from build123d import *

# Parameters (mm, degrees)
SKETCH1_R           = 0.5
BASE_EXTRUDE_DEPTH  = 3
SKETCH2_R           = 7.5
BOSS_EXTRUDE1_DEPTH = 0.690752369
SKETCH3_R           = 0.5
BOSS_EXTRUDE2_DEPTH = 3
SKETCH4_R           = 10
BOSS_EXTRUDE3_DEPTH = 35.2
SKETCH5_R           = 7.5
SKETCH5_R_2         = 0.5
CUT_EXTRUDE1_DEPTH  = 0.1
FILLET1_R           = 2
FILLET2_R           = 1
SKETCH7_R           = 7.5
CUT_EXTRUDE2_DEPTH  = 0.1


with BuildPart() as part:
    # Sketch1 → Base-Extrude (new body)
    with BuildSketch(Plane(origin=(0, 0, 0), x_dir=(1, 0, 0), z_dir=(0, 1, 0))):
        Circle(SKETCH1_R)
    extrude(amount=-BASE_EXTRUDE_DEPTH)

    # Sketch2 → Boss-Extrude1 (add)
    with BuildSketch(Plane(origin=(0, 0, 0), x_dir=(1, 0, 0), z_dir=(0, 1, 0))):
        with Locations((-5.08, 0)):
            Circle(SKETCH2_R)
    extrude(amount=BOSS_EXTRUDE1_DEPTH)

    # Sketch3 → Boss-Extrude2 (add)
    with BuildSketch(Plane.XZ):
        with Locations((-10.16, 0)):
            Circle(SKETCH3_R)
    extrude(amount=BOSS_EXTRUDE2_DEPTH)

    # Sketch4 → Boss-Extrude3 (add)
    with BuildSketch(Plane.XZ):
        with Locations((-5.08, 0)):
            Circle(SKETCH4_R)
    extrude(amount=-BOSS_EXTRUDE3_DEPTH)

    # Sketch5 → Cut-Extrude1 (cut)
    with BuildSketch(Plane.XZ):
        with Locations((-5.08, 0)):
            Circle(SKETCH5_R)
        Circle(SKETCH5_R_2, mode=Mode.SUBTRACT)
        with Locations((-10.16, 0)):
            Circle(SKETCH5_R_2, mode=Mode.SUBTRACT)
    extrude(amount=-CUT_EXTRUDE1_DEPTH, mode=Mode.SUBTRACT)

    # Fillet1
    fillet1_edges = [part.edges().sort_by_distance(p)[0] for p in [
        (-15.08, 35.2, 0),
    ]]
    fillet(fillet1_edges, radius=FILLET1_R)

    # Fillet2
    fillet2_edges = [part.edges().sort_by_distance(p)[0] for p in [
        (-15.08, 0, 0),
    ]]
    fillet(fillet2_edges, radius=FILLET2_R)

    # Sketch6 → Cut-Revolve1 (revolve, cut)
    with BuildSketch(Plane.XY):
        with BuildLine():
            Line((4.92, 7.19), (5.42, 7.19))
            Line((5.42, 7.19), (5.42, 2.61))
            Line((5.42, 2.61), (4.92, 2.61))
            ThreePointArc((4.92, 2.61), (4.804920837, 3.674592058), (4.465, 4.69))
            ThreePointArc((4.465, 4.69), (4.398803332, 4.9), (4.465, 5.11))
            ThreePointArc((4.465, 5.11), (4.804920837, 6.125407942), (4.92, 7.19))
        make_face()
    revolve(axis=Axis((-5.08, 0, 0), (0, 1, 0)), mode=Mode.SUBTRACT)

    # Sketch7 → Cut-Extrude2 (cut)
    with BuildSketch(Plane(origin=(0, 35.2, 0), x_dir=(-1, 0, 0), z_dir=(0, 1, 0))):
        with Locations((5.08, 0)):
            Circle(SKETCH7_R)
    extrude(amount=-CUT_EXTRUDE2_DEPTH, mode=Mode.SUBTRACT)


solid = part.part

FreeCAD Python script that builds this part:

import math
import FreeCAD as App
import Part
import Sketcher


def edges_at(feature, points):
    """Names of the edges that pass closest to the given points."""
    edges = feature.Shape.Edges
    near = lambda p: min(range(len(edges)), key=lambda i: edges[i].distToShape(Part.Vertex(*p))[0])
    return sorted({f"Edge{near(p) + 1}" for p in points})

doc = App.newDocument("Part")
params = doc.addObject("Spreadsheet::Sheet", "Params")
for row, (alias, value) in enumerate([
    ("sketch1_diameter", "1 mm"),
    ("pad1_length", "3 mm"),
    ("sketch2_diameter", "15 mm"),
    ("pad2_length", "0.690752 mm"),
    ("sketch3_diameter", "1 mm"),
    ("pad3_length", "3 mm"),
    ("sketch4_diameter", "20 mm"),
    ("pad4_length", "35.2 mm"),
    ("sketch5_diameter", "15 mm"),
    ("sketch5_diameter2", "1 mm"),
    ("pocket1_length", "0.1 mm"),
    ("fillet_radius", "2 mm"),
    ("fillet2_radius", "1 mm"),
    ("sketch6_width", "0.5 mm"),
    ("sketch6_height", "4.58 mm"),
    ("groove_angle", "360 deg"),
    ("sketch7_diameter", "15 mm"),
    ("pocket2_length", "0.1 mm"),
], start=1):
    params.set(f"A{row}", alias)
    params.set(f"B{row}", "=" + value)
    params.setAlias(f"B{row}", alias)

body = doc.addObject("PartDesign::Body", "Body")

sketch1 = body.newObject("Sketcher::SketchObject", "Sketch")
sketch1.AttachmentSupport = (doc.getObject("XZ_Plane"), [""])
sketch1.MapMode = "FlatFace"
sketch1.addGeometry(Part.Circle(App.Vector(0, 0, 0), App.Vector(0, 0, 1), 0.5), False)
sketch1.addConstraint(Sketcher.Constraint("Coincident", 0, 3, -1, 1))
sketch1.addConstraint(Sketcher.Constraint("Diameter", 0, 1.0))
sketch1.setExpression("Constraints[1]", "Params.sketch1_diameter")
pad1 = body.newObject("PartDesign::Pad", "Pad")
pad1.Profile = sketch1
pad1.setExpression("Length", "Params.pad1_length")

sketch2 = body.newObject("Sketcher::SketchObject", "Sketch001")
sketch2.AttachmentSupport = (doc.getObject("XZ_Plane"), [""])
sketch2.MapMode = "FlatFace"
sketch2.addGeometry(Part.Circle(App.Vector(-5.08, 0, 0), App.Vector(0, 0, 1), 7.5), False)
sketch2.addConstraint(Sketcher.Constraint("PointOnObject", 0, 3, -1))
sketch2.addConstraint(Sketcher.Constraint("Diameter", 0, 15.0))
sketch2.addConstraint(Sketcher.Constraint("DistanceX", 0, 3, -1, 1, 5.08))
sketch2.setExpression("Constraints[1]", "Params.sketch2_diameter")
pad2 = body.newObject("PartDesign::Pad", "Pad001")
pad2.Profile = sketch2
pad2.setExpression("Length", "Params.pad2_length")
pad2.Reversed = True

sketch3 = body.newObject("Sketcher::SketchObject", "Sketch002")
sketch3.AttachmentSupport = (doc.getObject("XZ_Plane"), [""])
sketch3.MapMode = "FlatFace"
sketch3.addGeometry(Part.Circle(App.Vector(-10.16, 0, 0), App.Vector(0, 0, 1), 0.5), False)
sketch3.addConstraint(Sketcher.Constraint("PointOnObject", 0, 3, -1))
sketch3.addConstraint(Sketcher.Constraint("Diameter", 0, 1.0))
sketch3.addConstraint(Sketcher.Constraint("DistanceX", 0, 3, -1, 1, 10.16))
sketch3.setExpression("Constraints[1]", "Params.sketch3_diameter")
pad3 = body.newObject("PartDesign::Pad", "Pad002")
pad3.Profile = sketch3
pad3.setExpression("Length", "Params.pad3_length")

sketch4 = body.newObject("Sketcher::SketchObject", "Sketch003")
sketch4.AttachmentSupport = (doc.getObject("XZ_Plane"), [""])
sketch4.MapMode = "FlatFace"
sketch4.addGeometry(Part.Circle(App.Vector(-5.08, 0, 0), App.Vector(0, 0, 1), 10), False)
sketch4.addConstraint(Sketcher.Constraint("PointOnObject", 0, 3, -1))
sketch4.addConstraint(Sketcher.Constraint("Diameter", 0, 20.0))
sketch4.addConstraint(Sketcher.Constraint("DistanceX", 0, 3, -1, 1, 5.08))
sketch4.setExpression("Constraints[1]", "Params.sketch4_diameter")
pad4 = body.newObject("PartDesign::Pad", "Pad003")
pad4.Profile = sketch4
pad4.setExpression("Length", "Params.pad4_length")
pad4.Reversed = True

sketch5 = body.newObject("Sketcher::SketchObject", "Sketch004")
sketch5.AttachmentSupport = (doc.getObject("XZ_Plane"), [""])
sketch5.MapMode = "FlatFace"
sketch5.addGeometry(Part.Circle(App.Vector(-5.08, 0, 0), App.Vector(0, 0, 1), 7.5), False)
sketch5.addGeometry(Part.Circle(App.Vector(-10.16, 0, 0), App.Vector(0, 0, 1), 0.5), False)
sketch5.addGeometry(Part.Circle(App.Vector(0, 0, 0), App.Vector(0, 0, 1), 0.5), False)
sketch5.addConstraint(Sketcher.Constraint("Coincident", 2, 3, -1, 1))
sketch5.addConstraint(Sketcher.Constraint("Equal", 1, 2))
sketch5.addConstraint(Sketcher.Constraint("PointOnObject", 0, 3, -1))
sketch5.addConstraint(Sketcher.Constraint("PointOnObject", 1, 3, -1))
sketch5.addConstraint(Sketcher.Constraint("Diameter", 0, 15.0))
sketch5.addConstraint(Sketcher.Constraint("Diameter", 1, 1.0))
sketch5.addConstraint(Sketcher.Constraint("DistanceX", 0, 3, -1, 1, 5.08))
sketch5.addConstraint(Sketcher.Constraint("DistanceX", 1, 3, -1, 1, 10.16))
sketch5.setExpression("Constraints[4]", "Params.sketch5_diameter")
sketch5.setExpression("Constraints[5]", "Params.sketch5_diameter2")
pocket1 = body.newObject("PartDesign::Pocket", "Pocket")
pocket1.Profile = sketch5
pocket1.setExpression("Length", "Params.pocket1_length")
doc.recompute()

fillet = body.newObject("PartDesign::Fillet", "Fillet")
fillet.Base = (pocket1, edges_at(pocket1, [(-15.08, 35.2, 0)]))
fillet.setExpression("Radius", "Params.fillet_radius")
doc.recompute()

fillet2 = body.newObject("PartDesign::Fillet", "Fillet001")
fillet2.Base = (fillet, edges_at(fillet, [(-15.08, 0, 0)]))
fillet2.setExpression("Radius", "Params.fillet2_radius")

sketch6 = body.newObject("Sketcher::SketchObject", "Sketch005")
sketch6.AttachmentSupport = (doc.getObject("XY_Plane"), [""])
sketch6.MapMode = "FlatFace"
sketch6.addGeometry(Part.LineSegment(App.Vector(5.42, 7.19, 0), App.Vector(4.92, 7.19, 0)), False)
sketch6.addGeometry(Part.ArcOfCircle(Part.Circle(App.Vector(-0.061786, 7.19, 0), App.Vector(0, 0, 1), 4.981786), math.radians(-24.678175), math.radians(0)), False)
sketch6.addGeometry(Part.ArcOfCircle(Part.Circle(App.Vector(4.765, 4.9, 0), App.Vector(0, 0, 1), 0.366197), math.radians(145.00798), math.radians(214.99202)), False)
sketch6.addGeometry(Part.ArcOfCircle(Part.Circle(App.Vector(-0.061786, 2.61, 0), App.Vector(0, 0, 1), 4.981786), math.radians(0), math.radians(24.678175)), False)
sketch6.addGeometry(Part.LineSegment(App.Vector(4.92, 2.61, 0), App.Vector(5.42, 2.61, 0)), False)
sketch6.addGeometry(Part.LineSegment(App.Vector(5.42, 2.61, 0), App.Vector(5.42, 7.19, 0)), False)
sketch6.addGeometry(Part.LineSegment(App.Vector(-5.08, 2.61, 0), App.Vector(-5.08, 7.19, 0)), True)
sketch6.addConstraint(Sketcher.Constraint("Coincident", 0, 2, 1, 2))
sketch6.addConstraint(Sketcher.Constraint("Coincident", 1, 1, 2, 1))
sketch6.addConstraint(Sketcher.Constraint("Coincident", 2, 2, 3, 2))
sketch6.addConstraint(Sketcher.Constraint("Coincident", 3, 1, 4, 1))
sketch6.addConstraint(Sketcher.Constraint("Coincident", 4, 2, 5, 1))
sketch6.addConstraint(Sketcher.Constraint("Coincident", 5, 2, 0, 1))
sketch6.addConstraint(Sketcher.Constraint("Horizontal", 0))
sketch6.addConstraint(Sketcher.Constraint("Horizontal", 4))
sketch6.addConstraint(Sketcher.Constraint("Vertical", 5))
sketch6.addConstraint(Sketcher.Constraint("Vertical", 6))
sketch6.addConstraint(Sketcher.Constraint("Equal", 1, 3))
sketch6.addConstraint(Sketcher.Constraint("Horizontal", 1, 3, 0, 2))
sketch6.addConstraint(Sketcher.Constraint("Horizontal", 4, 2, 6, 1))
sketch6.addConstraint(Sketcher.Constraint("Horizontal", 5, 2, 6, 2))
sketch6.addConstraint(Sketcher.Constraint("Vertical", 1, 3, 3, 3))
sketch6.addConstraint(Sketcher.Constraint("Vertical", 1, 1, 2, 2))
sketch6.addConstraint(Sketcher.Constraint("DistanceX", 0, 2, 0, 1, 0.5))
sketch6.addConstraint(Sketcher.Constraint("DistanceX", 6, 1, 3, 1, 10.0))
sketch6.addConstraint(Sketcher.Constraint("DistanceY", 5, 1, 5, 2, 4.58))
sketch6.addConstraint(Sketcher.Constraint("DistanceY", -1, 1, 2, 3, 4.9))
sketch6.addConstraint(Sketcher.Constraint("DistanceX", 1, 1, 2, 3, 0.3))
sketch6.addConstraint(Sketcher.Constraint("DistanceY", 3, 3, 1, 1, 2.5))
sketch6.addConstraint(Sketcher.Constraint("DistanceY", 3, 1, 1, 1, 2.5))
sketch6.addConstraint(Sketcher.Constraint("DistanceX", -1, 1, 0, 2, 4.92))
sketch6.addConstraint(Sketcher.Constraint("DistanceX", -1, 1, 2, 3, 4.765))
sketch6.setExpression("Constraints[16]", "Params.sketch6_width")
sketch6.setExpression("Constraints[18]", "Params.sketch6_height")
groove = body.newObject("PartDesign::Groove", "Groove")
groove.Profile = sketch6
groove.ReferenceAxis = (sketch6, ["Axis0"])
groove.setExpression("Angle", "Params.groove_angle")

sketch7 = body.newObject("Sketcher::SketchObject", "Sketch006")
sketch7.AttachmentSupport = (doc.getObject("XZ_Plane"), [""])
sketch7.MapMode = "FlatFace"
sketch7.AttachmentOffset = App.Placement(App.Vector(0, 0, -35.2), App.Rotation())
sketch7.addGeometry(Part.Circle(App.Vector(-5.08, 0, 0), App.Vector(0, 0, 1), 7.5), False)
sketch7.addConstraint(Sketcher.Constraint("PointOnObject", 0, 3, -1))
sketch7.addConstraint(Sketcher.Constraint("Diameter", 0, 15.0))
sketch7.addConstraint(Sketcher.Constraint("DistanceX", 0, 3, -1, 1, 5.08))
sketch7.setExpression("Constraints[1]", "Params.sketch7_diameter")
pocket2 = body.newObject("PartDesign::Pocket", "Pocket001")
pocket2.Profile = sketch7
pocket2.setExpression("Length", "Params.pocket2_length")
pocket2.Reversed = True

doc.recompute()
